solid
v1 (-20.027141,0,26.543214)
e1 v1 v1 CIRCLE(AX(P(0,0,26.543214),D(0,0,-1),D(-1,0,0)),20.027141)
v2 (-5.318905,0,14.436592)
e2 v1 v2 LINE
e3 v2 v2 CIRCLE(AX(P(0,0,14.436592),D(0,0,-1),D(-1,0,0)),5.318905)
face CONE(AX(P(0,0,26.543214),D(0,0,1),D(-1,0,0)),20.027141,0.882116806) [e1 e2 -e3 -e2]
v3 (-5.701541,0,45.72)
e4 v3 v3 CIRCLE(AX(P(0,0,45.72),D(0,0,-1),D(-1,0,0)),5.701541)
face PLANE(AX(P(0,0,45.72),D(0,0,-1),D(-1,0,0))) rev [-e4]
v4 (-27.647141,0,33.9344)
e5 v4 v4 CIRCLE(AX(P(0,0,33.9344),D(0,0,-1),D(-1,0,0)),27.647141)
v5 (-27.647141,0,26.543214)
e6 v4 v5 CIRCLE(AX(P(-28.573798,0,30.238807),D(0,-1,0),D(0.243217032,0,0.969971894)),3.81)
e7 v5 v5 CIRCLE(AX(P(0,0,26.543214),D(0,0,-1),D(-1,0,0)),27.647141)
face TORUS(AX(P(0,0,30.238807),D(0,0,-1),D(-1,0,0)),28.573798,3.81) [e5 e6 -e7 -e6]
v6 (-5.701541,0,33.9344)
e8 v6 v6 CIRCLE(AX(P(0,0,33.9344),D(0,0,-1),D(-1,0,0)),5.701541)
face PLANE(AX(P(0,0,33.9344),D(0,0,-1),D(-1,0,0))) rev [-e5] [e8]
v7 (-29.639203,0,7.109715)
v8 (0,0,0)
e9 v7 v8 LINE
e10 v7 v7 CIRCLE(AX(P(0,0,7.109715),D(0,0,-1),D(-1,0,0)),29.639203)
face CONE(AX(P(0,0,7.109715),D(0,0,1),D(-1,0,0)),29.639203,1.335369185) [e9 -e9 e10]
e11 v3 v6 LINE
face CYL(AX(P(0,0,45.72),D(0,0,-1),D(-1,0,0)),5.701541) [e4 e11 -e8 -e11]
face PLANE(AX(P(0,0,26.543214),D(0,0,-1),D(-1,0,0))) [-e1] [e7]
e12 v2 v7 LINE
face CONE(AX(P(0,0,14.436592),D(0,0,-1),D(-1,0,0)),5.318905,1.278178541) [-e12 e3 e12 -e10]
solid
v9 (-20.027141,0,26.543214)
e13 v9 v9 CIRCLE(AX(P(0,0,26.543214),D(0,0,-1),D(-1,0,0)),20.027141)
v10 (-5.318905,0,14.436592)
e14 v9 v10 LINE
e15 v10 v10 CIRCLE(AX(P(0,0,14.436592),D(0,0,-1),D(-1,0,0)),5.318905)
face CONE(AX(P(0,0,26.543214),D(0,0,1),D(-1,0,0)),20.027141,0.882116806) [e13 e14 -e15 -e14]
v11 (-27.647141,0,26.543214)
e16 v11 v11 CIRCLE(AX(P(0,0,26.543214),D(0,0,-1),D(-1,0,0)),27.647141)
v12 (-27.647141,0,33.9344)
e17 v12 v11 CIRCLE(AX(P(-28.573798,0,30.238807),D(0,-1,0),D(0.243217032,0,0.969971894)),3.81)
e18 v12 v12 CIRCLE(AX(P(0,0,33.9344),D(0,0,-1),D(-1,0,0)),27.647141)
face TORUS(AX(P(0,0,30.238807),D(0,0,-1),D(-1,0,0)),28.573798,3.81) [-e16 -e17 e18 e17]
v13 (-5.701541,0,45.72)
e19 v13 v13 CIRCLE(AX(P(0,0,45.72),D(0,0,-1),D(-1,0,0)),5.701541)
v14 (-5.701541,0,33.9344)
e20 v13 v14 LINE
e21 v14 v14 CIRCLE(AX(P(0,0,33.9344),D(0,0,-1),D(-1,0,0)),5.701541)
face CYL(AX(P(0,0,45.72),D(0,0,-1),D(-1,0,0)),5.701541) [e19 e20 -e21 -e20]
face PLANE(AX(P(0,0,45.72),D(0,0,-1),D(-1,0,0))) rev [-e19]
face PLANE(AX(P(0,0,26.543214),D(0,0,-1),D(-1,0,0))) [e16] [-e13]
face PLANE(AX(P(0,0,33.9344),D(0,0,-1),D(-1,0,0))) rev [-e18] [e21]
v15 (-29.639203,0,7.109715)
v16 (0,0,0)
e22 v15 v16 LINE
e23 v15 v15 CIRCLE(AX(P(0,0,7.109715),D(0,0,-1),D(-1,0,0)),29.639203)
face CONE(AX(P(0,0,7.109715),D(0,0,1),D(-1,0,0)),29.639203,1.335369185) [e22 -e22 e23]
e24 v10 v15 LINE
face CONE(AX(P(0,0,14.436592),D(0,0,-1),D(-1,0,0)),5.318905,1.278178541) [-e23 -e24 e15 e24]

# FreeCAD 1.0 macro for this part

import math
import FreeCAD as App
import Part
import Sketcher
from FreeCAD import Vector
Q = App.Units.Quantity

doc = App.newDocument("Part")
body = doc.addObject("PartDesign::Body", "Body")

# Sketch on XZ plane
sketch1 = body.newObject("Sketcher::SketchObject", "Sketch")
sketch1.AttachmentSupport = (doc.getObject("XZ_Plane"), [""])
sketch1.MapMode = "FlatFace"
sketch1.addGeometry([
    Part.LineSegment(Vector(-29.639203, 7.109715, 0), Vector(0, 0, 0)),  # 0
    Part.LineSegment(Vector(0, 0, 0), Vector(0, 45.72, 0)),  # 1
    Part.LineSegment(Vector(0, 45.72, 0), Vector(-5.701541, 45.72, 0)),  # 2
    Part.LineSegment(Vector(-5.701541, 45.72, 0), Vector(-5.701541, 33.9344, 0)),  # 3
    Part.LineSegment(Vector(-5.701541, 33.9344, 0), Vector(-27.647141, 33.9344, 0)),  # 4
    Part.ArcOfCircle(Part.Circle(Vector(-28.573798, 30.238807, 0), Vector(0, 0, 1), 3.81), math.radians(75.92351), math.radians(284.07649)),  # 5
    Part.LineSegment(Vector(-27.647141, 26.543214, 0), Vector(-20.027141, 26.543214, 0)),  # 6
    Part.LineSegment(Vector(-20.027141, 26.543214, 0), Vector(-5.318905, 14.436592, 0)),  # 7
    Part.LineSegment(Vector(-5.318905, 14.436592, 0), Vector(-29.639203, 7.109715, 0)),  # 8
], False)
sketch1.addConstraint([
    Sketcher.Constraint("Coincident", 0, 2, 1, 1),
    Sketcher.Constraint("Coincident", 1, 2, 2, 1),
    Sketcher.Constraint("Coincident", 2, 2, 3, 1),
    Sketcher.Constraint("Coincident", 3, 2, 4, 1),
    Sketcher.Constraint("Coincident", 4, 2, 5, 1),
    Sketcher.Constraint("Coincident", 5, 2, 6, 1),
    Sketcher.Constraint("Coincident", 6, 2, 7, 1),
    Sketcher.Constraint("Coincident", 7, 2, 8, 1),
    Sketcher.Constraint("Coincident", 8, 2, 0, 1),
    Sketcher.Constraint("Vertical", 1),
    Sketcher.Constraint("Horizontal", 2),
    Sketcher.Constraint("Vertical", 3),
    Sketcher.Constraint("Horizontal", 4),
    Sketcher.Constraint("Horizontal", 6),
    Sketcher.Constraint("Coincident", 0, 2, -1, 1),
    Sketcher.Constraint("Vertical", 4, 2, 5, 2),
    Sketcher.Constraint("Radius", 5, Q("0.15 in")),
    Sketcher.Constraint("Distance", 8, Q("1 in")),
    Sketcher.Constraint("DistanceX", 6, 1, 6, 2, Q("0.3 in")),
    Sketcher.Constraint("DistanceY", 1, 1, 1, 2, Q("1.8 in")),
    Sketcher.Constraint("Distance", 0, Q("1.2 in")),
    Sketcher.Constraint("Distance", 7, Q("0.75 in")),
    Sketcher.Constraint("DistanceX", 4, 2, 4, 1, Q("0.864 in")),
    Sketcher.Constraint("DistanceY", 3, 2, 3, 1, Q("0.464 in")),
    Sketcher.Constraint("DistanceX", 2, 2, 2, 1, Q("5.701541 mm")),
    Sketcher.Constraint("DistanceY", 8, 2, 5, 2, Q("19.433499 mm")),
    Sketcher.Constraint("DistanceY", -1, 1, 7, 2, Q("14.436592 mm")),
])
revolution = body.newObject("PartDesign::Revolution", "Revolution")
revolution.Profile = sketch1
revolution.ReferenceAxis = (sketch1, ["V_Axis"])
revolution.Angle = 360
body2 = doc.addObject("PartDesign::Body", "Body001")

# Sketch on XZ plane
sketch2 = body2.newObject("Sketcher::SketchObject", "Sketch001")
sketch2.AttachmentSupport = (doc.getObject("XZ_Plane001"), [""])
sketch2.MapMode = "FlatFace"
sketch2.addGeometry([
    Part.LineSegment(Vector(-29.639203, 7.109715, 0), Vector(0, 0, 0)),  # 0
    Part.LineSegment(Vector(0, 0, 0), Vector(0, 45.72, 0)),  # 1
    Part.LineSegment(Vector(0, 45.72, 0), Vector(-5.701541, 45.72, 0)),  # 2
    Part.LineSegment(Vector(-5.701541, 45.72, 0), Vector(-5.701541, 33.9344, 0)),  # 3
    Part.LineSegment(Vector(-5.701541, 33.9344, 0), Vector(-27.647141, 33.9344, 0)),  # 4
    Part.ArcOfCircle(Part.Circle(Vector(-28.573798, 30.238807, 0), Vector(0, 0, 1), 3.81), math.radians(75.92351), math.radians(284.07649)),  # 5
    Part.LineSegment(Vector(-27.647141, 26.543214, 0), Vector(-20.027141, 26.543214, 0)),  # 6
    Part.LineSegment(Vector(-20.027141, 26.543214, 0), Vector(-5.318905, 14.436592, 0)),  # 7
    Part.LineSegment(Vector(-5.318905, 14.436592, 0), Vector(-29.639203, 7.109715, 0)),  # 8
], False)
sketch2.addConstraint([
    Sketcher.Constraint("Coincident", 0, 2, 1, 1),
    Sketcher.Constraint("Coincident", 1, 2, 2, 1),
    Sketcher.Constraint("Coincident", 2, 2, 3, 1),
    Sketcher.Constraint("Coincident", 3, 2, 4, 1),
    Sketcher.Constraint("Coincident", 4, 2, 5, 1),
    Sketcher.Constraint("Coincident", 5, 2, 6, 1),
    Sketcher.Constraint("Coincident", 6, 2, 7, 1),
    Sketcher.Constraint("Coincident", 7, 2, 8, 1),
    Sketcher.Constraint("Coincident", 8, 2, 0, 1),
    Sketcher.Constraint("Vertical", 1),
    Sketcher.Constraint("Horizontal", 2),
    Sketcher.Constraint("Vertical", 3),
    Sketcher.Constraint("Horizontal", 4),
    Sketcher.Constraint("Horizontal", 6),
    Sketcher.Constraint("Coincident", 0, 2, -1, 1),
    Sketcher.Constraint("Vertical", 4, 2, 5, 2),
    Sketcher.Constraint("Radius", 5, Q("0.15 in")),
    Sketcher.Constraint("Distance", 8, Q("1 in")),
    Sketcher.Constraint("DistanceX", 6, 1, 6, 2, Q("0.3 in")),
    Sketcher.Constraint("DistanceY", 1, 1, 1, 2, Q("1.8 in")),
    Sketcher.Constraint("Distance", 0, Q("1.2 in")),
    Sketcher.Constraint("Distance", 7, Q("0.75 in")),
    Sketcher.Constraint("DistanceX", 4, 2, 4, 1, Q("0.864 in")),
    Sketcher.Constraint("DistanceY", 3, 2, 3, 1, Q("0.464 in")),
    Sketcher.Constraint("DistanceX", 2, 2, 2, 1, Q("5.701541 mm")),
    Sketcher.Constraint("DistanceY", 8, 2, 5, 2, Q("19.433499 mm")),
    Sketcher.Constraint("DistanceY", -1, 1, 7, 2, Q("14.436592 mm")),
])
revolution2 = body2.newObject("PartDesign::Revolution", "Revolution001")
revolution2.Profile = sketch2
revolution2.ReferenceAxis = (sketch2, ["V_Axis"])
revolution2.Angle = 360

doc.recompute()
